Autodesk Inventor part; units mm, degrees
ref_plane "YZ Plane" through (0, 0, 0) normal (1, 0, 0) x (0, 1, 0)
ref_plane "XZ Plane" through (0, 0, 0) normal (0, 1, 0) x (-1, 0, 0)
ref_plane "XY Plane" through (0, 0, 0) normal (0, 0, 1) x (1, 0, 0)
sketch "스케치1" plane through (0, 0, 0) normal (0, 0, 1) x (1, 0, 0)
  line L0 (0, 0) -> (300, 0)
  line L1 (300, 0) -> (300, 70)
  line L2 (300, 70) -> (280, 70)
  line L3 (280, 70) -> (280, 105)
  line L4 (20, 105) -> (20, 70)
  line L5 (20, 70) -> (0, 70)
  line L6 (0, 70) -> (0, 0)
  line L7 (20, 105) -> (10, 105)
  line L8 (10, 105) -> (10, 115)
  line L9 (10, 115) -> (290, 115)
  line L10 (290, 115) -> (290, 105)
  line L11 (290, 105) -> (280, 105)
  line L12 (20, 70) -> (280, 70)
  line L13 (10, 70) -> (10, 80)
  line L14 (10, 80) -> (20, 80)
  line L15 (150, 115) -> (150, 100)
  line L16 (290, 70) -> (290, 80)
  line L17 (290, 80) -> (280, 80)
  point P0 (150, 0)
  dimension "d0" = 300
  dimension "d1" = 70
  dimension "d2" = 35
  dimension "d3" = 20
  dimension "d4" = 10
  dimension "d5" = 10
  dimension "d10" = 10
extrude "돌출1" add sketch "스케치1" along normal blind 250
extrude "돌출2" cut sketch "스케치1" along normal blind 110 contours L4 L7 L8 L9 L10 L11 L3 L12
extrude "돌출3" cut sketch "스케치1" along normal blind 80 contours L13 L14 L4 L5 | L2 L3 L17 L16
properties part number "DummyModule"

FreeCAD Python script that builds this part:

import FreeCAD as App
import Part
import Sketcher

V = App.Vector

doc = App.newDocument("Part")
params = doc.addObject("Spreadsheet::Sheet", "Params")
for row, (alias, value) in enumerate([
    ("sketch1_width", "300 mm"),
    ("sketch1_width2", "10 mm"),
    ("sketch1_height", "70 mm"),
    ("pad1_length", "250 mm"),
    ("sketch2_width", "10 mm"),
    ("sketch2_height", "35 mm"),
    ("sketch2_width2", "260 mm"),
    ("pocket1_length", "110 mm"),
    ("sketch3_width", "10 mm"),
    ("pocket2_length", "80 mm"),
], start=1):
    params.set(f"A{row}", alias)
    params.set(f"B{row}", "=" + value)
    params.setAlias(f"B{row}", alias)

body = doc.addObject("PartDesign::Body", "Body")

# Sketch on XY plane
sketch1 = body.newObject("Sketcher::SketchObject", "Sketch")
sketch1.AttachmentSupport = (doc.getObject("XY_Plane"), [""])
sketch1.MapMode = "FlatFace"
sketch1.addGeometry([
    Part.LineSegment(V(0, 70, 0), V(0, 0, 0)),  # 0
    Part.LineSegment(V(0, 0, 0), V(300, 0, 0)),  # 1
    Part.LineSegment(V(300, 0, 0), V(300, 70, 0)),  # 2
    Part.LineSegment(V(300, 70, 0), V(290, 70, 0)),  # 3
    Part.LineSegment(V(290, 70, 0), V(290, 80, 0)),  # 4
    Part.LineSegment(V(290, 80, 0), V(280, 80, 0)),  # 5
    Part.LineSegment(V(280, 80, 0), V(280, 105, 0)),  # 6
    Part.LineSegment(V(280, 105, 0), V(290, 105, 0)),  # 7
    Part.LineSegment(V(290, 105, 0), V(290, 115, 0)),  # 8
    Part.LineSegment(V(290, 115, 0), V(10, 115, 0)),  # 9
    Part.LineSegment(V(10, 115, 0), V(10, 105, 0)),  # 10
    Part.LineSegment(V(10, 105, 0), V(20, 105, 0)),  # 11
    Part.LineSegment(V(20, 105, 0), V(20, 80, 0)),  # 12
    Part.LineSegment(V(20, 80, 0), V(10, 80, 0)),  # 13
    Part.LineSegment(V(10, 80, 0), V(10, 70, 0)),  # 14
    Part.LineSegment(V(10, 70, 0), V(0, 70, 0)),  # 15
], False)
sketch1.addConstraint([
    Sketcher.Constraint("Coincident", 0, 2, 1, 1),
    Sketcher.Constraint("Coincident", 1, 2, 2, 1),
    Sketcher.Constraint("Coincident", 2, 2, 3, 1),
    Sketcher.Constraint("Coincident", 3, 2, 4, 1),
    Sketcher.Constraint("Coincident", 4, 2, 5, 1),
    Sketcher.Constraint("Coincident", 5, 2, 6, 1),
    Sketcher.Constraint("Coincident", 6, 2, 7, 1),
    Sketcher.Constraint("Coincident", 7, 2, 8, 1),
    Sketcher.Constraint("Coincident", 8, 2, 9, 1),
    Sketcher.Constraint("Coincident", 9, 2, 10, 1),
    Sketcher.Constraint("Coincident", 10, 2, 11, 1),
    Sketcher.Constraint("Coincident", 11, 2, 12, 1),
    Sketcher.Constraint("Coincident", 12, 2, 13, 1),
    Sketcher.Constraint("Coincident", 13, 2, 14, 1),
    Sketcher.Constraint("Coincident", 14, 2, 15, 1),
    Sketcher.Constraint("Coincident", 15, 2, 0, 1),
    Sketcher.Constraint("Vertical", 0),
    Sketcher.Constraint("Horizontal", 1),
    Sketcher.Constraint("Vertical", 2),
    Sketcher.Constraint("Horizontal", 3),
    Sketcher.Constraint("Vertical", 4),
    Sketcher.Constraint("Horizontal", 5),
    Sketcher.Constraint("Vertical", 6),
    Sketcher.Constraint("Horizontal", 7),
    Sketcher.Constraint("Vertical", 8),
    Sketcher.Constraint("Horizontal", 9),
    Sketcher.Constraint("Vertical", 10),
    Sketcher.Constraint("Horizontal", 11),
    Sketcher.Constraint("Vertical", 12),
    Sketcher.Constraint("Horizontal", 13),
    Sketcher.Constraint("Vertical", 14),
    Sketcher.Constraint("Horizontal", 15),
    Sketcher.Constraint("Coincident", 0, 2, -1, 1),
    Sketcher.Constraint("Horizontal", 7, 2, 10, 2),
    Sketcher.Constraint("Horizontal", 5, 2, 12, 2),
    Sketcher.Constraint("Horizontal", 3, 2, 14, 2),
    Sketcher.Constraint("Vertical", 4, 2, 7, 2),
    Sketcher.Constraint("Vertical", 10, 2, 13, 2),
    Sketcher.Constraint("Equal", 3, 5),
    Sketcher.Constraint("Equal", 7, 11),
    Sketcher.Constraint("Equal", 13, 15),
    Sketcher.Constraint("Equal", 15, 4),
    Sketcher.Constraint("Equal", 4, 8),
    Sketcher.Constraint("DistanceX", 1, 1, 1, 2, 300.0),
    Sketcher.Constraint("DistanceX", 3, 2, 3, 1, 10.0),
    Sketcher.Constraint("DistanceY", 0, 2, 0, 1, 70.0),
    Sketcher.Constraint("DistanceY", 3, 2, 6, 2, 35.0),
])
sketch1.setExpression("Constraints[43]", "Params.sketch1_width")
sketch1.setExpression("Constraints[44]", "Params.sketch1_width2")
sketch1.setExpression("Constraints[45]", "Params.sketch1_height")
pad1 = body.newObject("PartDesign::Pad", "Pad")
pad1.Profile = sketch1
pad1.setExpression("Length", "Params.pad1_length")

# Sketch on XY plane
sketch2 = body.newObject("Sketcher::SketchObject", "Sketch001")
sketch2.AttachmentSupport = (doc.getObject("XY_Plane"), [""])
sketch2.MapMode = "FlatFace"
sketch2.addGeometry([
    Part.LineSegment(V(20, 105, 0), V(20, 70, 0)),  # 0
    Part.LineSegment(V(20, 70, 0), V(280, 70, 0)),  # 1
    Part.LineSegment(V(280, 70, 0), V(280, 105, 0)),  # 2
    Part.LineSegment(V(280, 105, 0), V(290, 105, 0)),  # 3
    Part.LineSegment(V(290, 105, 0), V(290, 115, 0)),  # 4
    Part.LineSegment(V(290, 115, 0), V(10, 115, 0)),  # 5
    Part.LineSegment(V(10, 115, 0), V(10, 105, 0)),  # 6
    Part.LineSegment(V(10, 105, 0), V(20, 105, 0)),  # 7
], False)
sketch2.addConstraint([
    Sketcher.Constraint("Coincident", 0, 2, 1, 1),
    Sketcher.Constraint("Coincident", 1, 2, 2, 1),
    Sketcher.Constraint("Coincident", 2, 2, 3, 1),
    Sketcher.Constraint("Coincident", 3, 2, 4, 1),
    Sketcher.Constraint("Coincident", 4, 2, 5, 1),
    Sketcher.Constraint("Coincident", 5, 2, 6, 1),
    Sketcher.Constraint("Coincident", 6, 2, 7, 1),
    Sketcher.Constraint("Coincident", 7, 2, 0, 1),
    Sketcher.Constraint("Vertical", 0),
    Sketcher.Constraint("Horizontal", 1),
    Sketcher.Constraint("Vertical", 2),
    Sketcher.Constraint("Horizontal", 3),
    Sketcher.Constraint("Vertical", 4),
    Sketcher.Constraint("Horizontal", 5),
    Sketcher.Constraint("Vertical", 6),
    Sketcher.Constraint("Horizontal", 7),
    Sketcher.Constraint("Horizontal", 3, 2, 6, 2),
    Sketcher.Constraint("Equal", 3, 7),
    Sketcher.Constraint("Equal", 7, 4),
    Sketcher.Constraint("DistanceX", 3, 1, 3, 2, 10.0),
    Sketcher.Constraint("DistanceY", 0, 2, 0, 1, 35.0),
    Sketcher.Constraint("DistanceX", -1, 1, 0, 2, 20.0),
    Sketcher.Constraint("DistanceY", -1, 1, 0, 2, 70.0),
    Sketcher.Constraint("DistanceX", 1, 1, 1, 2, 260.0),
])
sketch2.setExpression("Constraints[19]", "Params.sketch2_width")
sketch2.setExpression("Constraints[20]", "Params.sketch2_height")
sketch2.setExpression("Constraints[23]", "Params.sketch2_width2")
pocket1 = body.newObject("PartDesign::Pocket", "Pocket")
pocket1.Profile = sketch2
pocket1.setExpression("Length", "Params.pocket1_length")
pocket1.Reversed = True

# Sketch on XY plane
sketch3 = body.newObject("Sketcher::SketchObject", "Sketch002")
sketch3.AttachmentSupport = (doc.getObject("XY_Plane"), [""])
sketch3.MapMode = "FlatFace"
sketch3.addGeometry([
    Part.LineSegment(V(10, 80, 0), V(10, 70, 0)),  # 0
    Part.LineSegment(V(10, 70, 0), V(20, 70, 0)),  # 1
    Part.LineSegment(V(20, 70, 0), V(20, 80, 0)),  # 2
    Part.LineSegment(V(20, 80, 0), V(10, 80, 0)),  # 3
    Part.LineSegment(V(280, 70, 0), V(290, 70, 0)),  # 4
    Part.LineSegment(V(290, 70, 0), V(290, 80, 0)),  # 5
    Part.LineSegment(V(290, 80, 0), V(280, 80, 0)),  # 6
    Part.LineSegment(V(280, 80, 0), V(280, 70, 0)),  # 7
], False)
sketch3.addConstraint([
    Sketcher.Constraint("Coincident", 0, 2, 1, 1),
    Sketcher.Constraint("Coincident", 1, 2, 2, 1),
    Sketcher.Constraint("Coincident", 2, 2, 3, 1),
    Sketcher.Constraint("Coincident", 3, 2, 0, 1),
    Sketcher.Constraint("Coincident", 4, 2, 5, 1),
    Sketcher.Constraint("Coincident", 5, 2, 6, 1),
    Sketcher.Constraint("Coincident", 6, 2, 7, 1),
    Sketcher.Constraint("Coincident", 7, 2, 4, 1),
    Sketcher.Constraint("Vertical", 0),
    Sketcher.Constraint("Horizontal", 1),
    Sketcher.Constraint("Vertical", 2),
    Sketcher.Constraint("Horizontal", 3),
    Sketcher.Constraint("Horizontal", 4),
    Sketcher.Constraint("Vertical", 5),
    Sketcher.Constraint("Horizontal", 6),
    Sketcher.Constraint("Vertical", 7),
    Sketcher.Constraint("Horizontal", 1, 2, 4, 2),
    Sketcher.Constraint("Horizontal", 3, 2, 5, 2),
    Sketcher.Constraint("Equal", 3, 4),
    Sketcher.Constraint("Equal", 6, 0),
    Sketcher.Constraint("DistanceX", 1, 1, 1, 2, 10.0),
    Sketcher.Constraint("DistanceX", -1, 1, 0, 2, 10.0),
    Sketcher.Constraint("DistanceY", -1, 1, 0, 2, 70.0),
    Sketcher.Constraint("DistanceX", -1, 1, 4, 2, 290.0),
])
sketch3.setExpression("Constraints[20]", "Params.sketch3_width")
pocket2 = body.newObject("PartDesign::Pocket", "Pocket001")
pocket2.Profile = sketch3
pocket2.setExpression("Length", "Params.pocket2_length")
pocket2.Reversed = True

doc.recompute()
